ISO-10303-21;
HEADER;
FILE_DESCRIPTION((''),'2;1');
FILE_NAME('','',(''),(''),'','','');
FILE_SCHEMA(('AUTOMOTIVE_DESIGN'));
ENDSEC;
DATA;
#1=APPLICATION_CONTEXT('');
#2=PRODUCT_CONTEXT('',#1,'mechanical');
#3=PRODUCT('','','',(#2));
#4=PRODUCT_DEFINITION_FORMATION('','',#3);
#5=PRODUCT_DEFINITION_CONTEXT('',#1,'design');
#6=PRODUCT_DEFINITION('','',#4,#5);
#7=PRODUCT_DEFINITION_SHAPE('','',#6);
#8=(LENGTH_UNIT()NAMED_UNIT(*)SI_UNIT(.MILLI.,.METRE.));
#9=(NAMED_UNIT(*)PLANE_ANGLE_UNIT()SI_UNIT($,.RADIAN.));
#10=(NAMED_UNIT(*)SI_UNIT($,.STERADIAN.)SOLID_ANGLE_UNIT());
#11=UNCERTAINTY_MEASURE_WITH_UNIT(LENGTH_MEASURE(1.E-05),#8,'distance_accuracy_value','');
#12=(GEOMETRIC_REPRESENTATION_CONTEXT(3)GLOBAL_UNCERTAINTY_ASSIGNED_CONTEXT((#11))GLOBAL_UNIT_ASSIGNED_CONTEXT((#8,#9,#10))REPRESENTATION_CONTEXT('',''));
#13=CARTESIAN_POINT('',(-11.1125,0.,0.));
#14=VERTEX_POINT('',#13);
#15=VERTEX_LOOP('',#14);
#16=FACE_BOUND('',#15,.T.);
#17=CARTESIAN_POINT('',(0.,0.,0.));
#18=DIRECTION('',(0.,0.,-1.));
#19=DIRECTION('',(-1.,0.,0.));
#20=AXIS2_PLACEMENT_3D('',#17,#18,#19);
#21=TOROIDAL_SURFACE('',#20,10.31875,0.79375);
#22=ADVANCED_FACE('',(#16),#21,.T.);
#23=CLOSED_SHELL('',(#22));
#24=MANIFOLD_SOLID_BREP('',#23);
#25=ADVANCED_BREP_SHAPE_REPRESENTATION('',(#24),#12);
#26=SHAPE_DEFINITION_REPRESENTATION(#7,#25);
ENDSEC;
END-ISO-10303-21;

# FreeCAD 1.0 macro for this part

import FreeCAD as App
import Part
import Sketcher

V = App.Vector
Q = App.Units.Quantity

doc = App.newDocument("Part")
params = doc.addObject("Spreadsheet::Sheet", "Params")
for row, (alias, value) in enumerate([
    ("sketch1_diameter", "0.0625 in"),
    ("revolution_angle", "360 deg"),
], start=1):
    params.set(f"A{row}", alias)
    params.set(f"B{row}", "=" + value)
    params.setAlias(f"B{row}", alias)

body = doc.addObject("PartDesign::Body", "Body")

sketch1 = body.newObject("Sketcher::SketchObject", "Sketch")
sketch1.AttachmentSupport = (doc.getObject("XZ_Plane"), [""])
sketch1.MapMode = "FlatFace"
sketch1.addGeometry(Part.Circle(V(-10.3, 0, 0), V(0, 0, 1), 0.8), False)
sketch1.addConstraint(Sketcher.Constraint("PointOnObject", 0, 3, -1))
sketch1.addConstraint(Sketcher.Constraint("Diameter", 0, Q("0.0625 in")))
sketch1.addConstraint(Sketcher.Constraint("DistanceX", 0, 3, -1, 1, Q("0.40625 in")))
sketch1.setExpression("Constraints[1]", "Params.sketch1_diameter")
revolution = body.newObject("PartDesign::Revolution", "Revolution")
revolution.Profile = sketch1
revolution.ReferenceAxis = (sketch1, ["V_Axis"])
revolution.setExpression("Angle", "Params.revolution_angle")

doc.recompute()
